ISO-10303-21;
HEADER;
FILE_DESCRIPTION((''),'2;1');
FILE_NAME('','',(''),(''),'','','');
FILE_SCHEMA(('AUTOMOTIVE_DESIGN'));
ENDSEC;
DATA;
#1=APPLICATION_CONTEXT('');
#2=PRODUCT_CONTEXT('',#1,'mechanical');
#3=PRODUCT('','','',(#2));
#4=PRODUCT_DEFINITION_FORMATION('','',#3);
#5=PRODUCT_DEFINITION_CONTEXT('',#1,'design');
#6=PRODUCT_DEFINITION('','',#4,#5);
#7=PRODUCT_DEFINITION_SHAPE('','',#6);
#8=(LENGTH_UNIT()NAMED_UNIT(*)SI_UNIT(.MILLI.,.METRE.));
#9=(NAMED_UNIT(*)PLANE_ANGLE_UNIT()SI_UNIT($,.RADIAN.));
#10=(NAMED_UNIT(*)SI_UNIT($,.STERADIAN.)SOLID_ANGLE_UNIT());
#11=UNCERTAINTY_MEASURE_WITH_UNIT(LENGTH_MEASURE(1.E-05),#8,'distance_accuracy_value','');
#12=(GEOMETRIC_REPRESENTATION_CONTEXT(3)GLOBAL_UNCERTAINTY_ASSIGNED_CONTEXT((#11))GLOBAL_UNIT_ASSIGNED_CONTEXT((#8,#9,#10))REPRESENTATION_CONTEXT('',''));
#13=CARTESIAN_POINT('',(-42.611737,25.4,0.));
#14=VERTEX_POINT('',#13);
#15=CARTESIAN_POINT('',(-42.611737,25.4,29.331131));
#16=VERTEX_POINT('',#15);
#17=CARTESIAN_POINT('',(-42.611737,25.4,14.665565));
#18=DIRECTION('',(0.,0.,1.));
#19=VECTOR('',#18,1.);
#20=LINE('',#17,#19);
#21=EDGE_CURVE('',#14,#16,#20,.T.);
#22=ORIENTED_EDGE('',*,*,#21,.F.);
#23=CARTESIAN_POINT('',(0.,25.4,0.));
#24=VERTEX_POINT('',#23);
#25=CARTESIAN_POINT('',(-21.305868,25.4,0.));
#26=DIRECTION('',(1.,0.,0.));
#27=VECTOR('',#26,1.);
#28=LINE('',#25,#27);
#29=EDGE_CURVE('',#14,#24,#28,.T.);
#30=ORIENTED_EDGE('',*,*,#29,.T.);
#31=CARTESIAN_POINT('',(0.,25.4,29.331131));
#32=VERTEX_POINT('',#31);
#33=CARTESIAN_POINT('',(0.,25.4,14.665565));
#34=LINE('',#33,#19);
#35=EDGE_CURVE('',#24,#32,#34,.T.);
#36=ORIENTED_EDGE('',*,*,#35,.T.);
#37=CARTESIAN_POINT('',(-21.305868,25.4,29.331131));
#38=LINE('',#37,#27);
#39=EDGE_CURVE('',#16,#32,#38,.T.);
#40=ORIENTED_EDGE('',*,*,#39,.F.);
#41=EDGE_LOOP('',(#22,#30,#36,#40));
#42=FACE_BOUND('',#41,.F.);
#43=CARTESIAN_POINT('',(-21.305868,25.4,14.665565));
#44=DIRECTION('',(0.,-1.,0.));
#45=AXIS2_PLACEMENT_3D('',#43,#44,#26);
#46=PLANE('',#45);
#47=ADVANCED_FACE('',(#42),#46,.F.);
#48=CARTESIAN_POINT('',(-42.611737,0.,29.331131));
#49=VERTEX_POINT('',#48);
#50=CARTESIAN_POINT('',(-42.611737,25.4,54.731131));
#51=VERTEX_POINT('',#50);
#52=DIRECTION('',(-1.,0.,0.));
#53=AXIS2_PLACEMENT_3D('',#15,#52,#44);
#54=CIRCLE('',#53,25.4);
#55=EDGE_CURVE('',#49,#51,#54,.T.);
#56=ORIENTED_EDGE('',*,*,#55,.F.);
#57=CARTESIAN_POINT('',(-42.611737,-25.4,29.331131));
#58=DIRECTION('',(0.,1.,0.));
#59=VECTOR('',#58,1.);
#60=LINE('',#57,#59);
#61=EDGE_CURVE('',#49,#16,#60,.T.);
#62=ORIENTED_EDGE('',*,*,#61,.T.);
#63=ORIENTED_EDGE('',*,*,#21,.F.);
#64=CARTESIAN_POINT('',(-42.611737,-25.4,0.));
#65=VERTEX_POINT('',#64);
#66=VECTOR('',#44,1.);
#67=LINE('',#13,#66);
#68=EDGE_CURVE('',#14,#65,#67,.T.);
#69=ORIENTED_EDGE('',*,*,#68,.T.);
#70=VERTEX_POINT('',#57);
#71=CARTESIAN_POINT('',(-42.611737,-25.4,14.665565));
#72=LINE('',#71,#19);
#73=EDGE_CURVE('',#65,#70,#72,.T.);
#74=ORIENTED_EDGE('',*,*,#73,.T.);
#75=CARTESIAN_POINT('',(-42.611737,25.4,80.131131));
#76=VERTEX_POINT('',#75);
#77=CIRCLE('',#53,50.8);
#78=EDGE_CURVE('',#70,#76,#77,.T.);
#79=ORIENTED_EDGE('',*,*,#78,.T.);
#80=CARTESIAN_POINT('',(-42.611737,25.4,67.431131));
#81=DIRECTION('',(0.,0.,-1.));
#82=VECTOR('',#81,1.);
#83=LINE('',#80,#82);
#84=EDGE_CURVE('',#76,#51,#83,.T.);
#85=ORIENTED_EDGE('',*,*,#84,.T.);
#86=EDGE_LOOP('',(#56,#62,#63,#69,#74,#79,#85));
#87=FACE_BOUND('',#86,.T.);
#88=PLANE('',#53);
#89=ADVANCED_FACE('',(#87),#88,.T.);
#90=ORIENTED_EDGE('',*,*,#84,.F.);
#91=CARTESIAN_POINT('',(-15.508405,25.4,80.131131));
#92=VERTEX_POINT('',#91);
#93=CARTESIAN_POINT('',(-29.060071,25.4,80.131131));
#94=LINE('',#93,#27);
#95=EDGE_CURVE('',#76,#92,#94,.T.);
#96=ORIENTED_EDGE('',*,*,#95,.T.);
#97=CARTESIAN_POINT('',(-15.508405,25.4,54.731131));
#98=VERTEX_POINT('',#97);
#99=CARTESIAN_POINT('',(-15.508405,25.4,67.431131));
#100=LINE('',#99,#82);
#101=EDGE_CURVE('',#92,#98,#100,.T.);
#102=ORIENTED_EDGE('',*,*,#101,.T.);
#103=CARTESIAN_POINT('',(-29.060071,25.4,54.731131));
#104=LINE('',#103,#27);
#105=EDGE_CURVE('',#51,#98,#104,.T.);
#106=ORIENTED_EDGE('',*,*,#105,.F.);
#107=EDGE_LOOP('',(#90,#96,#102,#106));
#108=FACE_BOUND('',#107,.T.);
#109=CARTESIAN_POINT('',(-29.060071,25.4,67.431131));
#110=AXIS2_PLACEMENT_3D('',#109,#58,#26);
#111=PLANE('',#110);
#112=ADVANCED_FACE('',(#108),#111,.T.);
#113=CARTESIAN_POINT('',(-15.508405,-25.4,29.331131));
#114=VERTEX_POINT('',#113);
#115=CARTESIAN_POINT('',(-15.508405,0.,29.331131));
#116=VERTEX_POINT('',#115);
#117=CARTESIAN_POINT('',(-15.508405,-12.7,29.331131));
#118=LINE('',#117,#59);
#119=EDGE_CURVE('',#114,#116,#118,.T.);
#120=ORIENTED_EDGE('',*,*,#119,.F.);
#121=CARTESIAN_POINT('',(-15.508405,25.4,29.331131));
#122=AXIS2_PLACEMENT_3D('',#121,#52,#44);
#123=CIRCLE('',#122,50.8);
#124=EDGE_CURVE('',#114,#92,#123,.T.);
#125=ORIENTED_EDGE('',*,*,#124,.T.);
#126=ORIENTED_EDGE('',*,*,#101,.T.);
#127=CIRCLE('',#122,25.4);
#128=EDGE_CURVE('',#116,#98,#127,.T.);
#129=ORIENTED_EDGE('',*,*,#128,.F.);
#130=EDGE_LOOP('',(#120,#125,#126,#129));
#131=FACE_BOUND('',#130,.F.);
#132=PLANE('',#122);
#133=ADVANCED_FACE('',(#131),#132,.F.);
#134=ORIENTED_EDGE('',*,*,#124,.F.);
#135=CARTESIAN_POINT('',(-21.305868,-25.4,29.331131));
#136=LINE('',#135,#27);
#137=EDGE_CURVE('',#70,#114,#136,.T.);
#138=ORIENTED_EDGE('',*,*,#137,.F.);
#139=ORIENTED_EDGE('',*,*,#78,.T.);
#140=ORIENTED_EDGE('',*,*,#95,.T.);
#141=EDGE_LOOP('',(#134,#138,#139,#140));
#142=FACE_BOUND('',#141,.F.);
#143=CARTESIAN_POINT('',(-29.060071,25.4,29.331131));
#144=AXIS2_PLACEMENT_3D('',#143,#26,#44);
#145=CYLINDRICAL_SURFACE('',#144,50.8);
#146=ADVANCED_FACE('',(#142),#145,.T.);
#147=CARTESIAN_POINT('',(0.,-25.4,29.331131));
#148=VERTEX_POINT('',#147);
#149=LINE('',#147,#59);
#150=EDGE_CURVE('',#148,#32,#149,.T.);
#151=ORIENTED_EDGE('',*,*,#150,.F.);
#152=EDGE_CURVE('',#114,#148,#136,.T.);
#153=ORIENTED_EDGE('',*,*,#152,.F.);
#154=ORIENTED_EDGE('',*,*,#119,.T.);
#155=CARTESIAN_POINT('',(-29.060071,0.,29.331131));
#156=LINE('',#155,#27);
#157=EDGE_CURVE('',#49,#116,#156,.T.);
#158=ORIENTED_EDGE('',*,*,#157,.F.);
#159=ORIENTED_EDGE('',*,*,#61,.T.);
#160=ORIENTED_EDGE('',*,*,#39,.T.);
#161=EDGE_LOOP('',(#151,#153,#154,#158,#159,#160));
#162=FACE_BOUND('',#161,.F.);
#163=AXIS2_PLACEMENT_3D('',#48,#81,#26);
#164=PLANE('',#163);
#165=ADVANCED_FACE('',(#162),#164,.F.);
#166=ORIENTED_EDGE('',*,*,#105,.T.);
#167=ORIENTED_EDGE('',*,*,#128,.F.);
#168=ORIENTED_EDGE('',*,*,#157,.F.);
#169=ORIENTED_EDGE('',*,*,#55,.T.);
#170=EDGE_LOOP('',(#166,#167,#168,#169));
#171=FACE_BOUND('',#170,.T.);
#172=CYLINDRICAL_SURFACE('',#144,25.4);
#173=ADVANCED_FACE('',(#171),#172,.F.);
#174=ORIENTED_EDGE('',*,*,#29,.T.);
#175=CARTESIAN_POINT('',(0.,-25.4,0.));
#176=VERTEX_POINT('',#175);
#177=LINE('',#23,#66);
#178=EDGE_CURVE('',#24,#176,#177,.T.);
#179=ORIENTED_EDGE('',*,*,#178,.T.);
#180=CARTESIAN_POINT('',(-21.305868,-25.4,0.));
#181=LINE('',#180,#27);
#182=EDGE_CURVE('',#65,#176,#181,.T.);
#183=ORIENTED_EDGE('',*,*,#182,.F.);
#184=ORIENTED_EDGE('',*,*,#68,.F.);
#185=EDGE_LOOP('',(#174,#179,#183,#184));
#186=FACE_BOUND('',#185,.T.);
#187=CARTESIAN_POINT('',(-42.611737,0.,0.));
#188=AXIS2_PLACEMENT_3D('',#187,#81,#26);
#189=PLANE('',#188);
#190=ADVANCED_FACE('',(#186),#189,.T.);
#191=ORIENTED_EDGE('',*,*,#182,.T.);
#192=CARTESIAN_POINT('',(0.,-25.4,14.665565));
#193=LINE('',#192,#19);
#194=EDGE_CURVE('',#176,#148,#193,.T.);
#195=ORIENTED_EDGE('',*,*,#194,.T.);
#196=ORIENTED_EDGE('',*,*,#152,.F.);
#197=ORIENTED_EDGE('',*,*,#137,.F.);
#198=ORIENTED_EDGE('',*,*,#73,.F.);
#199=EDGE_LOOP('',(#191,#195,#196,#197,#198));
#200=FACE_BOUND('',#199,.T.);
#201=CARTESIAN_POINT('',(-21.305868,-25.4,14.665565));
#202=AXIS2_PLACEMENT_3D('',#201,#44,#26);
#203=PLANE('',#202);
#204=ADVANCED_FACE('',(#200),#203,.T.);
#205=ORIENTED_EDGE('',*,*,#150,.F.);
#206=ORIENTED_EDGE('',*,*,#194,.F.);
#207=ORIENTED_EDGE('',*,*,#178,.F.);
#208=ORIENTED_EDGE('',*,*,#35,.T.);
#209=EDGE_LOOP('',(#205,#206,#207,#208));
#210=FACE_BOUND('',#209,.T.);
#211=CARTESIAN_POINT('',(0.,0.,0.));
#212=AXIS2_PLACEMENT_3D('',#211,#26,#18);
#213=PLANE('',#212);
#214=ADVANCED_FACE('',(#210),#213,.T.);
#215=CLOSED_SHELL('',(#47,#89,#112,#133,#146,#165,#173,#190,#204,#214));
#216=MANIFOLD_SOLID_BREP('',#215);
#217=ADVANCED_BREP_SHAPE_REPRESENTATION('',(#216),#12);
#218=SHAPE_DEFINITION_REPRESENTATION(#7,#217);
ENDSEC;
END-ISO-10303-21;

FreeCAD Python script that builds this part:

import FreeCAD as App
import Part
import Sketcher

V = App.Vector
Q = App.Units.Quantity

doc = App.newDocument("Part")
body = doc.addObject("PartDesign::Body", "Body")

# Sketch on XZ plane
sketch1 = body.newObject("Sketcher::SketchObject", "Sketch")
sketch1.AttachmentSupport = (doc.getObject("XZ_Plane"), [""])
sketch1.MapMode = "FlatFace"
sketch1.addGeometry(Part.LineSegment(V(-42.611737, 29.331131, 0), V(-42.611737, 0, 0)), False)
sketch1.addGeometry(Part.LineSegment(V(-42.611737, 0, 0), V(0, 0, 0)), False)
sketch1.addGeometry(Part.LineSegment(V(0, 0, 0), V(0, 29.331131, 0)), False)
sketch1.addGeometry(Part.LineSegment(V(0, 29.331131, 0), V(-42.611737, 29.331131, 0)), False)
sketch1.addConstraint(Sketcher.Constraint("Coincident", 0, 2, 1, 1))
sketch1.addConstraint(Sketcher.Constraint("Coincident", 1, 2, 2, 1))
sketch1.addConstraint(Sketcher.Constraint("Coincident", 2, 2, 3, 1))
sketch1.addConstraint(Sketcher.Constraint("Coincident", 3, 2, 0, 1))
sketch1.addConstraint(Sketcher.Constraint("Vertical", 0))
sketch1.addConstraint(Sketcher.Constraint("Horizontal", 1))
sketch1.addConstraint(Sketcher.Constraint("Vertical", 2))
sketch1.addConstraint(Sketcher.Constraint("Horizontal", 3))
sketch1.addConstraint(Sketcher.Constraint("Coincident", 1, 2, -1, 1))
sketch1.addConstraint(Sketcher.Constraint("DistanceY", 0, 2, 0, 1, Q("29.331131 mm")))
sketch1.addConstraint(Sketcher.Constraint("DistanceX", 1, 1, 1, 2, Q("42.611737 mm")))
pad1 = body.newObject("PartDesign::Pad", "Pad")
pad1.Profile = sketch1
pad1.Length = Q("2 in")
pad1.Midplane = True

# Sketch on XY plane
sketch2 = body.newObject("Sketcher::SketchObject", "Sketch001")
sketch2.AttachmentSupport = (doc.getObject("XY_Plane"), [""])
sketch2.MapMode = "FlatFace"
sketch2.AttachmentOffset = App.Placement(V(0, 0, 29.331131), App.Rotation())
sketch2.addGeometry(Part.LineSegment(V(-42.611737, 0, 0), V(-42.611737, -25.4, 0)), False)
sketch2.addGeometry(Part.LineSegment(V(-42.611737, -25.4, 0), V(-15.508405, -25.4, 0)), False)
sketch2.addGeometry(Part.LineSegment(V(-15.508405, -25.4, 0), V(-15.508405, 0, 0)), False)
sketch2.addGeometry(Part.LineSegment(V(-15.508405, 0, 0), V(-42.611737, 0, 0)), False)
sketch2.addGeometry(Part.LineSegment(V(-15.508405, 25.4, 0), V(-42.611737, 25.4, 0)), True)  # axis
sketch2.addConstraint(Sketcher.Constraint("Coincident", 0, 2, 1, 1))
sketch2.addConstraint(Sketcher.Constraint("Coincident", 1, 2, 2, 1))
sketch2.addConstraint(Sketcher.Constraint("Coincident", 2, 2, 3, 1))
sketch2.addConstraint(Sketcher.Constraint("Coincident", 3, 2, 0, 1))
sketch2.addConstraint(Sketcher.Constraint("Vertical", 0))
sketch2.addConstraint(Sketcher.Constraint("Horizontal", 1))
sketch2.addConstraint(Sketcher.Constraint("Vertical", 2))
sketch2.addConstraint(Sketcher.Constraint("Horizontal", 3))
sketch2.addConstraint(Sketcher.Constraint("Horizontal", 4))
sketch2.addConstraint(Sketcher.Constraint("Symmetric", 1, 2, 4, 1, -1))
sketch2.addConstraint(Sketcher.Constraint("PointOnObject", 2, 2, -1))
sketch2.addConstraint(Sketcher.Constraint("Vertical", 3, 2, 4, 2))
sketch2.addConstraint(Sketcher.Constraint("DistanceY", 0, 2, 0, 1, Q("1 in")))
sketch2.addConstraint(Sketcher.Constraint("DistanceX", 1, 1, 1, 2, Q("27.103332 mm")))
sketch2.addConstraint(Sketcher.Constraint("DistanceX", 0, 2, -1, 1, Q("42.611737 mm")))
revolution = body.newObject("PartDesign::Revolution", "Revolution")
revolution.Profile = sketch2
revolution.ReferenceAxis = (sketch2, ["Axis0"])
revolution.Angle = 90

doc.recompute()
